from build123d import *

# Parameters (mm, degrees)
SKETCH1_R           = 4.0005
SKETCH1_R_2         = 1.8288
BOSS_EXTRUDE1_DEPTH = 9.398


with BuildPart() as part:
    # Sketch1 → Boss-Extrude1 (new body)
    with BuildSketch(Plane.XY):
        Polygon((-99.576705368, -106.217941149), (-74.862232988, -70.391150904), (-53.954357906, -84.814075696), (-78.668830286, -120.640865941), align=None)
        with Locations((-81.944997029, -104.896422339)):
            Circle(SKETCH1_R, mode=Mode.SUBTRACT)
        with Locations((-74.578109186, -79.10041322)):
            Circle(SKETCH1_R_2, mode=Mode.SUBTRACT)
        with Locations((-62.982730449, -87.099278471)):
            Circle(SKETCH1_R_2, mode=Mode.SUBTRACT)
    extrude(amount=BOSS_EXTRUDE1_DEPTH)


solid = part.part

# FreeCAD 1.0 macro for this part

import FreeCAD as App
import Part
import Sketcher

V = App.Vector
Q = App.Units.Quantity

doc = App.newDocument("Part")
body = doc.addObject("PartDesign::Body", "Body")

# Sketch on XY plane
sketch1 = doc.addObject("Sketcher::SketchObject", "Sketch")
body.addObject(sketch1)
sketch1.AttachmentSupport = (doc.XY_Plane, [""])
sketch1.MapMode = "FlatFace"
sketch1.addGeometry([
    Part.LineSegment(V(-74.9, -70.4, 0), V(-99.6, -106.2, 0)),  # 0
    Part.LineSegment(V(-99.6, -106.2, 0), V(-78.7, -120.6, 0)),  # 1
    Part.LineSegment(V(-78.7, -120.6, 0), V(-54, -84.8, 0)),  # 2
    Part.LineSegment(V(-54, -84.8, 0), V(-74.9, -70.4, 0)),  # 3
    Part.Circle(V(-81.9, -104.9, 0), V(0, 0, 1), 4),  # 4
    Part.Circle(V(-63, -87.1, 0), V(0, 0, 1), 1.8),  # 5
    Part.Circle(V(-74.6, -79.1, 0), V(0, 0, 1), 1.8),  # 6
], False)
sketch1.addConstraint([
    Sketcher.Constraint("Coincident", 0, 2, 1, 1),
    Sketcher.Constraint("Coincident", 1, 2, 2, 1),
    Sketcher.Constraint("Coincident", 2, 2, 3, 1),
    Sketcher.Constraint("Coincident", 3, 2, 0, 1),
    Sketcher.Constraint("Equal", 5, 6),
    Sketcher.Constraint("Perpendicular", 0, 1),
    Sketcher.Constraint("Perpendicular", 1, 2),
    Sketcher.Constraint("Perpendicular", 2, 3),
    Sketcher.Constraint("Distance", 1, Q("1 in")),
    Sketcher.Constraint("Diameter", 4, Q("0.315 in")),
    Sketcher.Constraint("Diameter", 5, Q("0.144 in")),
    Sketcher.Constraint("DistanceX", 1, 2, 5, 3, 15.6861),
    Sketcher.Constraint("DistanceX", 5, 3, -1, 1, 62.98273),
    Sketcher.Constraint("DistanceY", 5, 3, -1, 1, 87.099278),
    Sketcher.Constraint("DistanceX", 6, 3, -1, 1, 74.578109),
    Sketcher.Constraint("DistanceY", 0, 2, -1, 1, 106.217941),
    Sketcher.Constraint("DistanceY", 3, 2, -1, 1, 70.391151),
    Sketcher.Constraint("DistanceY", 4, 3, 6, 3, 25.796009),
    Sketcher.Constraint("DistanceX", 0, 2, 4, 3, 17.631708),
    Sketcher.Constraint("DistanceY", 0, 2, 4, 3, 1.321519),
    Sketcher.Constraint("DistanceX", 6, 3, 2, 2, 20.623751),
])
pad1 = doc.addObject("PartDesign::Pad", "Pad")
body.addObject(pad1)
pad1.Profile = sketch1
pad1.Length = Q("0.37 in")

doc.recompute()
